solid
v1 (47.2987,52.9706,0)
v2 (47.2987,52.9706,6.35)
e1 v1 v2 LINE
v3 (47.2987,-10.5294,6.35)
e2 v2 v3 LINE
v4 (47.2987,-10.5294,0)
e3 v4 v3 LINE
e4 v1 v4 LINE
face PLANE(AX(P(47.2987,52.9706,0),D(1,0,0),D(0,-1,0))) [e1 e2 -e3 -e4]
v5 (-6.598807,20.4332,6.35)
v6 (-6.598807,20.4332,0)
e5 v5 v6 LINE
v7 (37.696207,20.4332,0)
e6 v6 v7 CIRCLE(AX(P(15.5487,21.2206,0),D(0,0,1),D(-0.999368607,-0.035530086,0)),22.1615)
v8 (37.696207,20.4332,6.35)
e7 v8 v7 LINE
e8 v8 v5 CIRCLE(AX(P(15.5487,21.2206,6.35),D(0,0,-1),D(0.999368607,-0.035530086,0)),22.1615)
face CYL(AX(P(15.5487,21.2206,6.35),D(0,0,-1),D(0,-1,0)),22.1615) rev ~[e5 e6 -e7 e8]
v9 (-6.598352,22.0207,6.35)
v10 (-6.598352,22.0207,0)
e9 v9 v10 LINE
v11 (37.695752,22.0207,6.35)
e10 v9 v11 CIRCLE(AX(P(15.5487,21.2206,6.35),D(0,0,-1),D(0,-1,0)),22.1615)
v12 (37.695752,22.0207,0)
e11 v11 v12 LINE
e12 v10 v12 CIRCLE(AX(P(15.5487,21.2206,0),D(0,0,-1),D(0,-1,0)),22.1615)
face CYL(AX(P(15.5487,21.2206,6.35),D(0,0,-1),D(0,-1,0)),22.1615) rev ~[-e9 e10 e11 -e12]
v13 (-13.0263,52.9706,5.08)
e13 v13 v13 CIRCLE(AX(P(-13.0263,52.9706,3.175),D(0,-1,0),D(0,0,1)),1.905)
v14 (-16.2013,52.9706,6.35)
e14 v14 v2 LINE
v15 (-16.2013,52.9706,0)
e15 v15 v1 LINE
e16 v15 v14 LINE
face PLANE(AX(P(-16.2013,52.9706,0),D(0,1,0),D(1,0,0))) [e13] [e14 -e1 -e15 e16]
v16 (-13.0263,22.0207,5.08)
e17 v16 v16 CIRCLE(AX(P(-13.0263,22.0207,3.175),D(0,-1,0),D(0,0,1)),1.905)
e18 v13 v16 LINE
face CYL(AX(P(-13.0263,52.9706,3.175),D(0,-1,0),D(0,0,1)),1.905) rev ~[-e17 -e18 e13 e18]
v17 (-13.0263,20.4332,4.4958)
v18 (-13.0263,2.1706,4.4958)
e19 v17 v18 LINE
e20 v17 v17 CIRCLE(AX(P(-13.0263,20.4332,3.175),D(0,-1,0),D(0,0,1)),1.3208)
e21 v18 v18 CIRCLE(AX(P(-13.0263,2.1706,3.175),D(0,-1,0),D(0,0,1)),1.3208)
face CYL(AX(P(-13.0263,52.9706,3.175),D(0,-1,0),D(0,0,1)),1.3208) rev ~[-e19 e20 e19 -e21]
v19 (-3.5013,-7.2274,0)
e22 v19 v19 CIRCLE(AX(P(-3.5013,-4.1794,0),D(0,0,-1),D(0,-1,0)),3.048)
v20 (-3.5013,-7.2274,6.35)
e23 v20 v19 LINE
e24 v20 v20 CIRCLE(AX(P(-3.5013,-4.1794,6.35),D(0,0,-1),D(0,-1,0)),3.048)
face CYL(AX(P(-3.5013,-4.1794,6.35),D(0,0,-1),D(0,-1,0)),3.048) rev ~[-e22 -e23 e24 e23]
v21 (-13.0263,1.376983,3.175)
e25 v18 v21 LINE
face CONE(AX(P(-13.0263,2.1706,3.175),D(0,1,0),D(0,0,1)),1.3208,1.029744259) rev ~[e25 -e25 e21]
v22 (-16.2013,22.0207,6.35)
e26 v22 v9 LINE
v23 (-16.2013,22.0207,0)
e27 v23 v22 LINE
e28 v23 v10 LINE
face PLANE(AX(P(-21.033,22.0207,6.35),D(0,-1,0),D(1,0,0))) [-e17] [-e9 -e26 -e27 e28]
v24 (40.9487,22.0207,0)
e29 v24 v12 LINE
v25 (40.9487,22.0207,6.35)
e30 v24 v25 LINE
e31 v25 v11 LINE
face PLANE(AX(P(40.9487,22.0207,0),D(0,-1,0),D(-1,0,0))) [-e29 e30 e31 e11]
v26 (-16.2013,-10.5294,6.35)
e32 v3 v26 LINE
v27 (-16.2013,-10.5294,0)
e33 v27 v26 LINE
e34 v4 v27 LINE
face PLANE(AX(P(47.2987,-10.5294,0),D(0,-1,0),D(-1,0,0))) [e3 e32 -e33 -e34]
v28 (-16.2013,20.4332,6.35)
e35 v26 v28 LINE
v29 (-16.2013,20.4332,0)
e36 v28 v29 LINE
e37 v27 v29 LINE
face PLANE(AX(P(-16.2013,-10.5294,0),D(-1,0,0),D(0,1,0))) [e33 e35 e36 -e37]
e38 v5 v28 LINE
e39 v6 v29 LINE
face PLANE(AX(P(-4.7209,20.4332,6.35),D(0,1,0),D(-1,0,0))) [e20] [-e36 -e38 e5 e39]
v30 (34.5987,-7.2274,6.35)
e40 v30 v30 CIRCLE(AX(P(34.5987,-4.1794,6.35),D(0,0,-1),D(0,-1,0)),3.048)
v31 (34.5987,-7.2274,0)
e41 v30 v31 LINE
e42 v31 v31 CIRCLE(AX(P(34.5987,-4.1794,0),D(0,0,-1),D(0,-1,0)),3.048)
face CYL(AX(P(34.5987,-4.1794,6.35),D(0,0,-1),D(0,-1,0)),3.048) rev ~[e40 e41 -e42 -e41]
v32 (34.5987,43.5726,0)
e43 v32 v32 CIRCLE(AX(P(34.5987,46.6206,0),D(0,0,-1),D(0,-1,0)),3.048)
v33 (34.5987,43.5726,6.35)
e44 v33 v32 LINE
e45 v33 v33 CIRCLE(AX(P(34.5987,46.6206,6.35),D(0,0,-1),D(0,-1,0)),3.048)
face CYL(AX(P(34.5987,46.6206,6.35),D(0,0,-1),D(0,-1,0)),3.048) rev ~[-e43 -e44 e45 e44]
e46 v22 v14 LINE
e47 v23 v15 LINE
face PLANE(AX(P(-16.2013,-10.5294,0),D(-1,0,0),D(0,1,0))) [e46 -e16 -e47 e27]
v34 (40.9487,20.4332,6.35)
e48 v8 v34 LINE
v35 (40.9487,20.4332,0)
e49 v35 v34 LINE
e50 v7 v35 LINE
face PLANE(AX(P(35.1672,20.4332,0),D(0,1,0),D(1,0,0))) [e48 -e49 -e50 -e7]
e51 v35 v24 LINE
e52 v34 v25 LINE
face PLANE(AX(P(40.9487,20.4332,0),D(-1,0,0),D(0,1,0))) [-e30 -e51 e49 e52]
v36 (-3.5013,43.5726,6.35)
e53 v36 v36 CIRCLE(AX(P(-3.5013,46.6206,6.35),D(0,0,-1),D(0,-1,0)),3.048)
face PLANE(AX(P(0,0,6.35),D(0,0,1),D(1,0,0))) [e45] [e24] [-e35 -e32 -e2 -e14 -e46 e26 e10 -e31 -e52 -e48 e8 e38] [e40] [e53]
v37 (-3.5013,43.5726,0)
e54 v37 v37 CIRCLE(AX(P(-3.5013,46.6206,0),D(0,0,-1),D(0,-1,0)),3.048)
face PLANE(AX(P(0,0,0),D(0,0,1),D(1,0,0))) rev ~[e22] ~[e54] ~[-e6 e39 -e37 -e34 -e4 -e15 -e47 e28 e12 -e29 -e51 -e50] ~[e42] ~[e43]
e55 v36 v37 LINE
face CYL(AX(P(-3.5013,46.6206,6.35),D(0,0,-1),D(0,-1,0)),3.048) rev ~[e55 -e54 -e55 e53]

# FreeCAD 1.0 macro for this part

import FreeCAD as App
import Part
import Sketcher
Q = App.Units.Quantity


def add_polygon(sketch, points):
    """Adds a closed chain of lines whose ends are joined by coincident constraints."""
    first, n = sketch.GeometryCount, len(points)
    for a, b in zip(points, points[1:] + points[:1]):
        sketch.addGeometry(Part.LineSegment(App.Vector(*a, 0), App.Vector(*b, 0)), False)
    for i in range(n):
        sketch.addConstraint(Sketcher.Constraint("Coincident", first + i, 2, first + (i + 1) % n, 1))

doc = App.newDocument("Part")
body = doc.addObject("PartDesign::Body", "Body")

sketch1 = body.newObject("Sketcher::SketchObject", "Sketch")
sketch1.AttachmentSupport = (doc.getObject("XY_Plane"), [""])
sketch1.MapMode = "FlatFace"
add_polygon(sketch1, [(47, 53), (-16, 53), (-16, -11), (47, -11)])
sketch1.addConstraint([
    Sketcher.Constraint("Horizontal", 0),
    Sketcher.Constraint("Vertical", 1),
    Sketcher.Constraint("Horizontal", 2),
    Sketcher.Constraint("Vertical", 3),
    Sketcher.Constraint("Equal", 2, 1),
    Sketcher.Constraint("DistanceX", 0, 2, 0, 1, Q("2.5 in")),
    Sketcher.Constraint("DistanceX", 0, 2, -1, 1, 16.2013),
    Sketcher.Constraint("DistanceY", -1, 1, 0, 2, 52.9706),
])
pad1 = body.newObject("PartDesign::Pad", "Pad")
pad1.Profile = sketch1
pad1.Length = Q("0.25 in")

sketch2 = body.newObject("Sketcher::SketchObject", "Sketch001")
sketch2.AttachmentSupport = (doc.getObject("XY_Plane"), [""])
sketch2.MapMode = "FlatFace"
sketch2.AttachmentOffset = App.Placement(App.Vector(0, 0, 0.25 * 25.4), App.Rotation())
sketch2.addGeometry(Part.Circle(App.Vector(16, 21, 0), App.Vector(0, 0, 1), 22), False)
sketch2.addConstraint([
    Sketcher.Constraint("Diameter", 0, Q("1.745 in")),
    Sketcher.Constraint("DistanceX", -1, 1, 0, 3, 15.5487),
    Sketcher.Constraint("DistanceY", -1, 1, 0, 3, 21.2206),
])
doc.recompute()
hole = body.newObject("PartDesign::Hole", "Hole")
hole.Profile = sketch2
hole.ThreadType = "None"
hole.Diameter = Q("1.745 in")
hole.DepthType = "ThroughAll"

sketch3 = body.newObject("Sketcher::SketchObject", "Sketch002")
sketch3.AttachmentSupport = (doc.getObject("XY_Plane"), [""])
sketch3.MapMode = "FlatFace"
sketch3.AttachmentOffset = App.Placement(App.Vector(0, 0, 0.25 * 25.4), App.Rotation())
sketch3.addGeometry([
    Part.Circle(App.Vector(-3.5, 46.6, 0), App.Vector(0, 0, 1), 3),
    Part.Circle(App.Vector(34.6, 46.6, 0), App.Vector(0, 0, 1), 3),
    Part.Circle(App.Vector(-3.5, -4.2, 0), App.Vector(0, 0, 1), 3),
    Part.Circle(App.Vector(34.6, -4.2, 0), App.Vector(0, 0, 1), 3),
], False)
sketch3.addConstraint([
    Sketcher.Constraint("Equal", 0, 1),
    Sketcher.Constraint("Equal", 1, 2),
    Sketcher.Constraint("Equal", 2, 3),
    Sketcher.Constraint("Horizontal", 0, 3, 1, 3),
    Sketcher.Constraint("Horizontal", 2, 3, 3, 3),
    Sketcher.Constraint("Vertical", 0, 3, 2, 3),
    Sketcher.Constraint("Vertical", 1, 3, 3, 3),
    Sketcher.Constraint("Diameter", 0, Q("0.24 in")),
    Sketcher.Constraint("DistanceY", 2, 3, 0, 3, Q("2 in")),
    Sketcher.Constraint("DistanceX", 0, 3, 1, 3, Q("1.5 in")),
    Sketcher.Constraint("DistanceX", 0, 3, -1, 1, 3.5013),
    Sketcher.Constraint("DistanceY", -1, 1, 0, 3, 46.6206),
])
doc.recompute()
hole2 = body.newObject("PartDesign::Hole", "Hole001")
hole2.Profile = sketch3
hole2.ThreadType = "None"
hole2.Diameter = Q("0.24 in")
hole2.DepthType = "ThroughAll"

sketch4 = body.newObject("Sketcher::SketchObject", "Sketch003")
sketch4.AttachmentSupport = (doc.getObject("XY_Plane"), [""])
sketch4.MapMode = "FlatFace"
sketch4.AttachmentOffset = App.Placement(App.Vector(0, 0, 0.25 * 25.4), App.Rotation())
add_polygon(sketch4, [(-21, 20.4), (-4.7, 20.4), (-4.7, 22), (-21, 22)])
sketch4.addConstraint([
    Sketcher.Constraint("Horizontal", 0),
    Sketcher.Constraint("Vertical", 1),
    Sketcher.Constraint("Horizontal", 2),
    Sketcher.Constraint("Vertical", 3),
    Sketcher.Constraint("DistanceY", 1, 1, 1, 2, Q("0.0625 in")),
    Sketcher.Constraint("DistanceX", 0, 1, 0, 2, Q("0.6422 in")),
    Sketcher.Constraint("DistanceX", 0, 2, -1, 1, 4.721),
    Sketcher.Constraint("DistanceY", -1, 1, 0, 2, 20.4332),
])
pocket1 = body.newObject("PartDesign::Pocket", "Pocket")
pocket1.Profile = sketch4
pocket1.Length = Q("0.25 in")

sketch5 = body.newObject("Sketcher::SketchObject", "Sketch004")
sketch5.AttachmentSupport = (doc.getObject("XZ_Plane"), [""])
sketch5.MapMode = "FlatFace"
sketch5.AttachmentOffset = App.Placement(App.Vector(0, 0, -52.9706), App.Rotation())
sketch5.addGeometry(Part.Circle(App.Vector(-13, 3.2, 0), App.Vector(0, 0, 1), 1.3), False)
sketch5.addConstraint([
    Sketcher.Constraint("Diameter", 0, Q("0.104 in")),
    Sketcher.Constraint("DistanceY", -1, 1, 0, 3, Q("0.125 in")),
    Sketcher.Constraint("DistanceX", 0, 3, -1, 1, 13.0263),
])
doc.recompute()
hole3 = body.newObject("PartDesign::Hole", "Hole002")
hole3.Profile = sketch5
hole3.ThreadType = "None"
hole3.Diameter = Q("0.104 in")
hole3.DepthType = "Dimension"
hole3.Depth = Q("2 in")
hole3.DrillPoint = "Angled"
hole3.DrillPointAngle = 118
hole3.Reversed = True

sketch6 = body.newObject("Sketcher::SketchObject", "Sketch005")
sketch6.AttachmentSupport = (doc.getObject("XZ_Plane"), [""])
sketch6.MapMode = "FlatFace"
sketch6.AttachmentOffset = App.Placement(App.Vector(0, 0, -52.9706), App.Rotation())
sketch6.addGeometry(Part.Circle(App.Vector(-13, 3.2, 0), App.Vector(0, 0, 1), 1.9), False)
sketch6.addConstraint([
    Sketcher.Constraint("Diameter", 0, Q("0.15 in")),
    Sketcher.Constraint("DistanceY", -1, 1, 0, 3, Q("0.125 in")),
    Sketcher.Constraint("DistanceX", 0, 3, -1, 1, 13.0263),
])
doc.recompute()
hole4 = body.newObject("PartDesign::Hole", "Hole003")
hole4.Profile = sketch6
hole4.ThreadType = "None"
hole4.Diameter = Q("0.15 in")
hole4.DepthType = "Dimension"
hole4.Depth = Q("1.25 in")
hole4.DrillPoint = "Angled"
hole4.DrillPointAngle = 118
hole4.Reversed = True

sketch7 = body.newObject("Sketcher::SketchObject", "Sketch006")
sketch7.AttachmentSupport = (doc.getObject("XY_Plane"), [""])
sketch7.MapMode = "FlatFace"
add_polygon(sketch7, [(35.2, 22), (40.9, 22), (40.9, 20.4), (35.2, 20.4)])
sketch7.addConstraint([
    Sketcher.Constraint("Horizontal", 0),
    Sketcher.Constraint("Vertical", 1),
    Sketcher.Constraint("Horizontal", 2),
    Sketcher.Constraint("Vertical", 3),
    Sketcher.Constraint("DistanceY", 1, 2, 1, 1, Q("0.0625 in")),
    Sketcher.Constraint("DistanceX", 0, 1, 0, 2, 5.7815),
    Sketcher.Constraint("DistanceX", -1, 1, 0, 2, 40.9487),
    Sketcher.Constraint("DistanceY", -1, 1, 0, 2, 22.0207),
])
pocket2 = body.newObject("PartDesign::Pocket", "Pocket001")
pocket2.Profile = sketch7
pocket2.Length = Q("0.25 in")
pocket2.Reversed = True

doc.recompute()
